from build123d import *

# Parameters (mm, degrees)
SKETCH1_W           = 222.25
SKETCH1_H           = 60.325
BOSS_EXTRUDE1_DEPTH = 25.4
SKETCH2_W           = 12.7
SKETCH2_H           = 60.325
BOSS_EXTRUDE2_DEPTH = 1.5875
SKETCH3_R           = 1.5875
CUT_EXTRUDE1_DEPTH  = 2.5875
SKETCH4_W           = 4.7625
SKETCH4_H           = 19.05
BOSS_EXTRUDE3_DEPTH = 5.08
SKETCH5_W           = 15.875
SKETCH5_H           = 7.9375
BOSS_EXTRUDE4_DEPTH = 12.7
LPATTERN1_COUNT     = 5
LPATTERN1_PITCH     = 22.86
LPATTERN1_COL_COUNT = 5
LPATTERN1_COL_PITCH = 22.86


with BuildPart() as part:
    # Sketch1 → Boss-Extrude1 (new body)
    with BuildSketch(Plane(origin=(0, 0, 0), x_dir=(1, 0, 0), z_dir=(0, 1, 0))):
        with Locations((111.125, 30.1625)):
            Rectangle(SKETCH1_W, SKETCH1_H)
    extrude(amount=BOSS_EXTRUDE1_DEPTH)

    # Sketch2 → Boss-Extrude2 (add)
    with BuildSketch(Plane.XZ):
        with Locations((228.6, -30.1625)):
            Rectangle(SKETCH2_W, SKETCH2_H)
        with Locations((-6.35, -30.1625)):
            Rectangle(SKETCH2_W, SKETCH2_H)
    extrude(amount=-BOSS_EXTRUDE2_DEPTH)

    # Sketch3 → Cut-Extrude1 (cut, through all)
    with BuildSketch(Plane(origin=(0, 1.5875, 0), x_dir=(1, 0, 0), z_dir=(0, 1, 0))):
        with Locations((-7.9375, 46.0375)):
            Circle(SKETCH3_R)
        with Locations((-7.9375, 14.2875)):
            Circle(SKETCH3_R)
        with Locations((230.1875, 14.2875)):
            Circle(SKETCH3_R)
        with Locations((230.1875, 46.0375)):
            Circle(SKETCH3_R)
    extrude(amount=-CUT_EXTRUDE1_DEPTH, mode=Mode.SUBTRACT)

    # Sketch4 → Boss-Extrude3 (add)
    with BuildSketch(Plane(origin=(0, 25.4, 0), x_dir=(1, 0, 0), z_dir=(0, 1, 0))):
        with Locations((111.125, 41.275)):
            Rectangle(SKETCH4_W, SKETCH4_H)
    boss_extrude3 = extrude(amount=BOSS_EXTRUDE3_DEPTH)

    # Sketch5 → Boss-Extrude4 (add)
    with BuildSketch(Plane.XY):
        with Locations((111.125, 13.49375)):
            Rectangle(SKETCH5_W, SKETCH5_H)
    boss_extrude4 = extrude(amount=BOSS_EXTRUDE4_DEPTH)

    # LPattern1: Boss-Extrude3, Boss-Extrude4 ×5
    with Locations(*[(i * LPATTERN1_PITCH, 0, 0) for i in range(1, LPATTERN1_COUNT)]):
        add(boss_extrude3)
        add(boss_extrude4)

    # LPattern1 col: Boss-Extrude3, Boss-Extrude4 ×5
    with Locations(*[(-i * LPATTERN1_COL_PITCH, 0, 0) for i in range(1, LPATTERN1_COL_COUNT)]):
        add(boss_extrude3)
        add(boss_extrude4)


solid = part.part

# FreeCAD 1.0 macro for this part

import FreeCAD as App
import Part
import Sketcher
Q = App.Units.Quantity


def add_polygon(sketch, points):
    """Adds a closed chain of lines whose ends are joined by coincident constraints."""
    first, n = sketch.GeometryCount, len(points)
    for a, b in zip(points, points[1:] + points[:1]):
        sketch.addGeometry(Part.LineSegment(App.Vector(*a, 0), App.Vector(*b, 0)), False)
    for i in range(n):
        sketch.addConstraint(Sketcher.Constraint("Coincident", first + i, 2, first + (i + 1) % n, 1))

doc = App.newDocument("Part")
body = doc.addObject("PartDesign::Body", "Body")

# Sketch on XZ plane
sketch1 = body.newObject("Sketcher::SketchObject", "Sketch")
sketch1.AttachmentSupport = (doc.getObject("XZ_Plane"), [""])
sketch1.MapMode = "FlatFace"
add_polygon(sketch1, [(0, -60), (0, 0), (222, 0), (222, -60)])  # lines 0-3
sketch1.addConstraint(Sketcher.Constraint("Vertical", 0))
sketch1.addConstraint(Sketcher.Constraint("Horizontal", 1))
sketch1.addConstraint(Sketcher.Constraint("Vertical", 2))
sketch1.addConstraint(Sketcher.Constraint("Horizontal", 3))
sketch1.addConstraint(Sketcher.Constraint("Coincident", 0, 2, -1, 1))
sketch1.addConstraint(Sketcher.Constraint("DistanceX", 1, 1, 1, 2, Q("8.75 in")))
sketch1.addConstraint(Sketcher.Constraint("DistanceY", 0, 1, 0, 2, Q("2.375 in")))
pad1 = body.newObject("PartDesign::Pad", "Pad")
pad1.Profile = sketch1
pad1.Length = Q("1 in")
pad1.Reversed = True

# Sketch on XZ plane
sketch2 = body.newObject("Sketcher::SketchObject", "Sketch001")
sketch2.AttachmentSupport = (doc.getObject("XZ_Plane"), [""])
sketch2.MapMode = "FlatFace"
add_polygon(sketch2, [(222, 0), (222, -60), (235, -60), (235, 0)])  # lines 0-3
add_polygon(sketch2, [(-13, 0), (-13, -60), (0, -60), (0, 0)])  # lines 4-7
sketch2.addConstraint(Sketcher.Constraint("Vertical", 0))
sketch2.addConstraint(Sketcher.Constraint("Horizontal", 1))
sketch2.addConstraint(Sketcher.Constraint("Vertical", 2))
sketch2.addConstraint(Sketcher.Constraint("Horizontal", 3))
sketch2.addConstraint(Sketcher.Constraint("Vertical", 4))
sketch2.addConstraint(Sketcher.Constraint("Horizontal", 5))
sketch2.addConstraint(Sketcher.Constraint("Vertical", 6))
sketch2.addConstraint(Sketcher.Constraint("Horizontal", 7))
sketch2.addConstraint(Sketcher.Constraint("Coincident", 6, 2, -1, 1))
sketch2.addConstraint(Sketcher.Constraint("PointOnObject", 2, 2, -1))
sketch2.addConstraint(Sketcher.Constraint("Horizontal", 1, 2, 4, 2))
sketch2.addConstraint(Sketcher.Constraint("Equal", 3, 5))
sketch2.addConstraint(Sketcher.Constraint("DistanceX", 1, 1, 1, 2, Q("0.5 in")))
sketch2.addConstraint(Sketcher.Constraint("DistanceY", 0, 2, 0, 1, Q("2.375 in")))
sketch2.addConstraint(Sketcher.Constraint("DistanceX", -1, 1, 0, 2, Q("8.75 in")))
pad2 = body.newObject("PartDesign::Pad", "Pad001")
pad2.Profile = sketch2
pad2.Length = Q("0.0625 in")
pad2.Reversed = True

# Sketch on XZ plane
sketch3 = body.newObject("Sketcher::SketchObject", "Sketch002")
sketch3.AttachmentSupport = (doc.getObject("XZ_Plane"), [""])
sketch3.MapMode = "FlatFace"
sketch3.AttachmentOffset = App.Placement(App.Vector(0, 0, -0.0625 * 25.4), App.Rotation())
sketch3.addGeometry(Part.Circle(App.Vector(-7.9, -46, 0), App.Vector(0, 0, 1), 1.6), False)
sketch3.addGeometry(Part.Circle(App.Vector(-7.9, -14.3, 0), App.Vector(0, 0, 1), 1.6), False)
sketch3.addGeometry(Part.Circle(App.Vector(230.2, -14.3, 0), App.Vector(0, 0, 1), 1.6), False)
sketch3.addGeometry(Part.Circle(App.Vector(230.2, -46, 0), App.Vector(0, 0, 1), 1.6), False)
sketch3.addConstraint(Sketcher.Constraint("Equal", 0, 1))
sketch3.addConstraint(Sketcher.Constraint("Equal", 1, 2))
sketch3.addConstraint(Sketcher.Constraint("Equal", 2, 3))
sketch3.addConstraint(Sketcher.Constraint("Horizontal", 1, 3, 2, 3))
sketch3.addConstraint(Sketcher.Constraint("Horizontal", 0, 3, 3, 3))
sketch3.addConstraint(Sketcher.Constraint("Vertical", 0, 3, 1, 3))
sketch3.addConstraint(Sketcher.Constraint("Vertical", 2, 3, 3, 3))
sketch3.addConstraint(Sketcher.Constraint("Diameter", 0, Q("0.125 in")))
sketch3.addConstraint(Sketcher.Constraint("DistanceY", 0, 3, 1, 3, Q("1.25 in")))
sketch3.addConstraint(Sketcher.Constraint("DistanceX", 0, 3, -1, 1, Q("0.3125 in")))
sketch3.addConstraint(Sketcher.Constraint("DistanceY", 0, 3, -1, 1, Q("1.8125 in")))
sketch3.addConstraint(Sketcher.Constraint("DistanceX", -1, 1, 2, 3, Q("9.0625 in")))
pocket1 = body.newObject("PartDesign::Pocket", "Pocket")
pocket1.Profile = sketch3
pocket1.Type = "ThroughAll"
pocket1.Reversed = True

# Sketch on XZ plane
sketch4 = body.newObject("Sketcher::SketchObject", "Sketch003")
sketch4.AttachmentSupport = (doc.getObject("XZ_Plane"), [""])
sketch4.MapMode = "FlatFace"
sketch4.AttachmentOffset = App.Placement(App.Vector(0, 0, -1 * 25.4), App.Rotation())
add_polygon(sketch4, [(108.7, -50.8), (108.7, -31.8), (113.5, -31.8), (113.5, -50.8)])  # lines 0-3
sketch4.addConstraint(Sketcher.Constraint("Vertical", 0))
sketch4.addConstraint(Sketcher.Constraint("Horizontal", 1))
sketch4.addConstraint(Sketcher.Constraint("Vertical", 2))
sketch4.addConstraint(Sketcher.Constraint("Horizontal", 3))
sketch4.addConstraint(Sketcher.Constraint("DistanceY", 2, 2, -1, 1, Q("2 in")))
sketch4.addConstraint(Sketcher.Constraint("DistanceY", 0, 1, 0, 2, Q("0.75 in")))
sketch4.addConstraint(Sketcher.Constraint("DistanceX", 1, 1, 1, 2, Q("0.1875 in")))
sketch4.addConstraint(Sketcher.Constraint("DistanceX", -1, 1, 0, 2, Q("4.28125 in")))
pad3 = body.newObject("PartDesign::Pad", "Pad002")
pad3.Profile = sketch4
pad3.Length = Q("0.2 in")
pad3.Reversed = True

# Sketch on XY plane
sketch5 = body.newObject("Sketcher::SketchObject", "Sketch004")
sketch5.AttachmentSupport = (doc.getObject("XY_Plane"), [""])
sketch5.MapMode = "FlatFace"
add_polygon(sketch5, [(103, 17), (103, 10), (119, 10), (119, 17)])  # lines 0-3
sketch5.addConstraint(Sketcher.Constraint("Vertical", 0))
sketch5.addConstraint(Sketcher.Constraint("Horizontal", 1))
sketch5.addConstraint(Sketcher.Constraint("Vertical", 2))
sketch5.addConstraint(Sketcher.Constraint("Horizontal", 3))
sketch5.addConstraint(Sketcher.Constraint("DistanceX", 1, 1, 1, 2, Q("0.625 in")))
sketch5.addConstraint(Sketcher.Constraint("DistanceY", 0, 2, 0, 1, Q("0.3125 in")))
sketch5.addConstraint(Sketcher.Constraint("DistanceX", -1, 1, 0, 2, Q("4.0625 in")))
sketch5.addConstraint(Sketcher.Constraint("DistanceY", -1, 1, 0, 2, Q("0.375 in")))
pad4 = body.newObject("PartDesign::Pad", "Pad003")
pad4.Profile = sketch5
pad4.Length = Q("0.5 in")
doc.recompute()

linearpattern = body.newObject("PartDesign::LinearPattern", "LinearPattern")
linearpattern.Originals = [pad3, pad4]
linearpattern.Direction = (doc.getObject("X_Axis"), [""])
linearpattern.Mode = "offset"
linearpattern.Offset = Q("0.9 in")
linearpattern.Occurrences = 5
body.Tip = linearpattern
doc.recompute()

linearpattern2 = body.newObject("PartDesign::LinearPattern", "LinearPattern001")
linearpattern2.Originals = [pad3, pad4]
linearpattern2.Direction = (doc.getObject("X_Axis"), [""])
linearpattern2.Mode = "offset"
linearpattern2.Offset = Q("0.9 in")
linearpattern2.Occurrences = 5
linearpattern2.Reversed = True
body.Tip = linearpattern2

doc.recompute()
